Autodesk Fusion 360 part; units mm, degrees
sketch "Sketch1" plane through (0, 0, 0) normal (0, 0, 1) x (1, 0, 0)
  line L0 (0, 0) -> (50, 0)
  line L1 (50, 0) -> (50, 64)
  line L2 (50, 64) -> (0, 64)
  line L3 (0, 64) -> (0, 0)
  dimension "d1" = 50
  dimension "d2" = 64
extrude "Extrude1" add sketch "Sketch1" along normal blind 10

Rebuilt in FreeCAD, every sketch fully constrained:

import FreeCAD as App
import Part
import Sketcher

V = App.Vector

doc = App.newDocument("Part")
body = doc.addObject("PartDesign::Body", "Body")

# Sketch on XY plane
sketch1 = body.newObject("Sketcher::SketchObject", "Sketch")
sketch1.AttachmentSupport = (doc.getObject("XY_Plane"), [""])
sketch1.MapMode = "FlatFace"
sketch1.addGeometry([
    Part.LineSegment(V(0, 64, 0), V(0, 0, 0)),
    Part.LineSegment(V(0, 0, 0), V(50, 0, 0)),
    Part.LineSegment(V(50, 0, 0), V(50, 64, 0)),
    Part.LineSegment(V(50, 64, 0), V(0, 64, 0)),
], False)
sketch1.addConstraint([
    Sketcher.Constraint("Coincident", 0, 2, 1, 1),
    Sketcher.Constraint("Coincident", 1, 2, 2, 1),
    Sketcher.Constraint("Coincident", 2, 2, 3, 1),
    Sketcher.Constraint("Coincident", 3, 2, 0, 1),
    Sketcher.Constraint("Vertical", 0),
    Sketcher.Constraint("Horizontal", 1),
    Sketcher.Constraint("Vertical", 2),
    Sketcher.Constraint("Horizontal", 3),
    Sketcher.Constraint("Coincident", 0, 2, -1, 1),
    Sketcher.Constraint("DistanceX", 1, 1, 1, 2, 50.0),
    Sketcher.Constraint("DistanceY", 0, 2, 0, 1, 64.0),
])
pad1 = body.newObject("PartDesign::Pad", "Pad")
pad1.Profile = sketch1
pad1.Length = 10

doc.recompute()
